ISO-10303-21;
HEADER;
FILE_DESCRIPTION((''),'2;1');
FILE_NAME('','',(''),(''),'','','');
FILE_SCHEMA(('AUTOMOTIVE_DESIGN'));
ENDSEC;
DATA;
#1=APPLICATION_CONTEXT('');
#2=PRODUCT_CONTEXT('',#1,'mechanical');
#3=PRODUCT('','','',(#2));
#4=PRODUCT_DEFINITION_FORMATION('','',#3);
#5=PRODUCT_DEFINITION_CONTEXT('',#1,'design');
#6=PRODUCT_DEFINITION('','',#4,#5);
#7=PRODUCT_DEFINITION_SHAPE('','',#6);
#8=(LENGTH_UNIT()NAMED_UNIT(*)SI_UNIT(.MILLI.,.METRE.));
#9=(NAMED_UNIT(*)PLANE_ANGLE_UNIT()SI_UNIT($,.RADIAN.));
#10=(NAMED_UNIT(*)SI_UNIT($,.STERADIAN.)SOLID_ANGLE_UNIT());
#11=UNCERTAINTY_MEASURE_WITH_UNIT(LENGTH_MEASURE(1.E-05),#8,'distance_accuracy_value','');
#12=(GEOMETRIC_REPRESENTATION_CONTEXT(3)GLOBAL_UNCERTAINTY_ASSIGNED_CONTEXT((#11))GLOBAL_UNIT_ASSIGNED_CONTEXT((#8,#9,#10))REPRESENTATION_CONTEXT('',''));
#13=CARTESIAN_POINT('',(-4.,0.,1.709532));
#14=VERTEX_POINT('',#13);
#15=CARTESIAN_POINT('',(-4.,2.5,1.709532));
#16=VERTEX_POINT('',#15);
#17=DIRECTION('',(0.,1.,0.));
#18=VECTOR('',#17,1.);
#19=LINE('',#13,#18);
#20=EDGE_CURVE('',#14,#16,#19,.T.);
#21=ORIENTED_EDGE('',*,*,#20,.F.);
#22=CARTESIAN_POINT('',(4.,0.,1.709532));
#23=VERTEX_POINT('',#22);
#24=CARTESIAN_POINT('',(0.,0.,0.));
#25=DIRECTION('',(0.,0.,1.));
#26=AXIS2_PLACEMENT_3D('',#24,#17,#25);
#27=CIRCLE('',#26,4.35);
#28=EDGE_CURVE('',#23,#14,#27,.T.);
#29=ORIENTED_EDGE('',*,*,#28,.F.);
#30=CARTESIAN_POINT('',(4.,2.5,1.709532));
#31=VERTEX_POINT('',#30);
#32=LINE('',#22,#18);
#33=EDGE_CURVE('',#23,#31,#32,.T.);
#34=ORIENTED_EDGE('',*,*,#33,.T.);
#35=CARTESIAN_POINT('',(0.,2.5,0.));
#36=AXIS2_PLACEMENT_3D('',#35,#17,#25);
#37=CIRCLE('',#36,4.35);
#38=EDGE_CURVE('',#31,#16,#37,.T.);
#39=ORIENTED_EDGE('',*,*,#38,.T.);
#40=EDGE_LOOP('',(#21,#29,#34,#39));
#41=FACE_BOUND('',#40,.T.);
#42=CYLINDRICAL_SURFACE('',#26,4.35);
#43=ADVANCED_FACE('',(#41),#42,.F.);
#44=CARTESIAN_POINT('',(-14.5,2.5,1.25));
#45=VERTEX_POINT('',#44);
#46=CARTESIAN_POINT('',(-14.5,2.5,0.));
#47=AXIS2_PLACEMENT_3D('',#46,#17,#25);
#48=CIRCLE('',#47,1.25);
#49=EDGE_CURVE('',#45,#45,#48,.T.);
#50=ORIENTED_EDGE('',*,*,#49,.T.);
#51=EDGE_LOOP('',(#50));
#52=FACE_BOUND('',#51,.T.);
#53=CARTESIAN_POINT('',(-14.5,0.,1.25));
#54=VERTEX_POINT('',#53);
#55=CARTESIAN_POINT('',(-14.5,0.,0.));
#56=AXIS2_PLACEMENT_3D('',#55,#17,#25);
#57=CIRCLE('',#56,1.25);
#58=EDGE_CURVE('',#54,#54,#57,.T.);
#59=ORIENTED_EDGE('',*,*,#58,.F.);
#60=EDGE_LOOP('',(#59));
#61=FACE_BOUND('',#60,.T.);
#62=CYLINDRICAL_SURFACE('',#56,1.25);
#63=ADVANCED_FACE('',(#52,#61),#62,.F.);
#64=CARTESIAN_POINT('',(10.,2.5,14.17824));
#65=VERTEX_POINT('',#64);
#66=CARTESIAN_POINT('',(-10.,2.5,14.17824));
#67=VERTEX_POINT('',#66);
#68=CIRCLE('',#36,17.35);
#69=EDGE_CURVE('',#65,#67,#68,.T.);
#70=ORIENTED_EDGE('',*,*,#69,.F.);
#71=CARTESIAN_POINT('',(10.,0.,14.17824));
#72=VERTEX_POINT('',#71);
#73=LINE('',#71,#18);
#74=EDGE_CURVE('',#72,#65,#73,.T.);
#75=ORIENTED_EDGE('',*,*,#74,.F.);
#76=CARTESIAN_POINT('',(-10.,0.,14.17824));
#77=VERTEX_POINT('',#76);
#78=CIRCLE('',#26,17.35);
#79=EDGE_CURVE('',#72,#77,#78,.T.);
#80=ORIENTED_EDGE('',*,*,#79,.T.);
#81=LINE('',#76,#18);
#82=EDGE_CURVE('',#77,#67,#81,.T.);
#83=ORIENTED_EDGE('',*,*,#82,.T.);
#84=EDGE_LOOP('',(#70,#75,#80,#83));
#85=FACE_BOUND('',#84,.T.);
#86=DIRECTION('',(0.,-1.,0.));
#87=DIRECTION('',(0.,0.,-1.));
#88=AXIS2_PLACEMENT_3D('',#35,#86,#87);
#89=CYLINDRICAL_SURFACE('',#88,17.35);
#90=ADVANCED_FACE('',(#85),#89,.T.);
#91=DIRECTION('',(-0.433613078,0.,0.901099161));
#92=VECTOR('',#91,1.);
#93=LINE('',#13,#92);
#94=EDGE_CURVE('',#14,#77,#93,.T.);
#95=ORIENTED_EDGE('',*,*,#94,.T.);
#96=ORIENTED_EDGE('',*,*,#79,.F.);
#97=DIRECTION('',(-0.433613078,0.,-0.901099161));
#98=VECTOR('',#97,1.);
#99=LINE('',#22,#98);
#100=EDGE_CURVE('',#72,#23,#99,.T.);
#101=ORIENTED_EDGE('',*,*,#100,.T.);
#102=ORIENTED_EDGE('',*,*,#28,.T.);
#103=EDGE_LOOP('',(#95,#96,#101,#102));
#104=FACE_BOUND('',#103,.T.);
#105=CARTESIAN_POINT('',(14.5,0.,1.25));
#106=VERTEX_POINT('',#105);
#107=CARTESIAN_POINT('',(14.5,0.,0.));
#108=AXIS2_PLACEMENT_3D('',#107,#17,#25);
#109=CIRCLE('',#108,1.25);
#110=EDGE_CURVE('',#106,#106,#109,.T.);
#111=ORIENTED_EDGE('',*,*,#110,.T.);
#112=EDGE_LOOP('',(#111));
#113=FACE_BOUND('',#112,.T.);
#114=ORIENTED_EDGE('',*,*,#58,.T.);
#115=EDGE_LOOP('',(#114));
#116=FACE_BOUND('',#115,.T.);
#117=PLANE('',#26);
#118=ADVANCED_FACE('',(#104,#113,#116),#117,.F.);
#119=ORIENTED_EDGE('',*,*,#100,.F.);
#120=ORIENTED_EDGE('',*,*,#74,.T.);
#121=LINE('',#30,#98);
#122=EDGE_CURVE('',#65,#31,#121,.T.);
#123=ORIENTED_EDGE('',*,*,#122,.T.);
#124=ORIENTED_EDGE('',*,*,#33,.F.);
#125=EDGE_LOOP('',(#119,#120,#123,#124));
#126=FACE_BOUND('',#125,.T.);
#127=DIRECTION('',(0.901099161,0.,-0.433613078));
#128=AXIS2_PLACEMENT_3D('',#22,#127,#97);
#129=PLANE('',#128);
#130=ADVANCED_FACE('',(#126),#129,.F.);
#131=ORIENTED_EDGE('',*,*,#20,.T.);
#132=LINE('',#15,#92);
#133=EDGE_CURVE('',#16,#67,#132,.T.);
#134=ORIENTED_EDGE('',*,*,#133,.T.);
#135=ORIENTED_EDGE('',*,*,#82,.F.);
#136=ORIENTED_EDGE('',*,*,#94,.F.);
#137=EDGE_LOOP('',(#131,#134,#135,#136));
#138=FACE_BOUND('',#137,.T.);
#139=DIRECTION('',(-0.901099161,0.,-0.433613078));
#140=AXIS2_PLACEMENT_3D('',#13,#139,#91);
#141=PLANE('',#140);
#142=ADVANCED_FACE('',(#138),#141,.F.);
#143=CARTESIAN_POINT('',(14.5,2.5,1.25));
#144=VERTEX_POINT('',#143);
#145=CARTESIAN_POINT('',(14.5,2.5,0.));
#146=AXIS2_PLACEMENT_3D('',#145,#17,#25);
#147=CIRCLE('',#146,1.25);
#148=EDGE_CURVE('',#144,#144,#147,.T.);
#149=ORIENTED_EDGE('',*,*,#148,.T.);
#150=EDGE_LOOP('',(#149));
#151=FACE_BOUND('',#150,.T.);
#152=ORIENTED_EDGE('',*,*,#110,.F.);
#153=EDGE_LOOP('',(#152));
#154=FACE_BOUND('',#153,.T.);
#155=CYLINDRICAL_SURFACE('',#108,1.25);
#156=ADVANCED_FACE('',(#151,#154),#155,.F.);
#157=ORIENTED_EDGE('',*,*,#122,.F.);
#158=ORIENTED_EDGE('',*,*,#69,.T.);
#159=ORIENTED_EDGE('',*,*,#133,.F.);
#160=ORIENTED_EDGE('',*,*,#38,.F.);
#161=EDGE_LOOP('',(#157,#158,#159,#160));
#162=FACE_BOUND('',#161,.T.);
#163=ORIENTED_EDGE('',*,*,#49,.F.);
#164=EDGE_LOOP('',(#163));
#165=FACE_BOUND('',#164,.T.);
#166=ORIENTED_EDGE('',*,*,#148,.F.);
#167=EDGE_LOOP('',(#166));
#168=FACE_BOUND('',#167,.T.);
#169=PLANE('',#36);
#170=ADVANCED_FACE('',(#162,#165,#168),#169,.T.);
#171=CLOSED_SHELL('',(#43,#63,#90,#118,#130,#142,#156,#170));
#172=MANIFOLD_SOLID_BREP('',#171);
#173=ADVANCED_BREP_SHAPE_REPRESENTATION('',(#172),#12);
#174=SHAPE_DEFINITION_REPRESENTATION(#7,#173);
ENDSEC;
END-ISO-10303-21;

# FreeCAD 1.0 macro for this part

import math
import FreeCAD as App
import Part
import Sketcher

doc = App.newDocument("Part")
params = doc.addObject("Spreadsheet::Sheet", "Params")
for row, (alias, value) in enumerate([
    ("sketch1_diameter", "34.7 mm"),
    ("pad1_length", "2.5 mm"),
    ("sketch2_diameter", "8.7 mm"),
    ("sketch3_diameter", "2.5 mm"),
    ("sketch4_radius", "17.35 mm"),
    ("sketch4_radius2", "4.35 mm"),
], start=1):
    params.set(f"A{row}", alias)
    params.set(f"B{row}", "=" + value)
    params.setAlias(f"B{row}", alias)

body = doc.addObject("PartDesign::Body", "Body")

# Sketch on XZ plane
sketch1 = body.newObject("Sketcher::SketchObject", "Sketch")
sketch1.AttachmentSupport = (doc.getObject("XZ_Plane"), [""])
sketch1.MapMode = "FlatFace"
sketch1.addGeometry(Part.Circle(App.Vector(0, 0, 0), App.Vector(0, 0, 1), 17), False)
sketch1.addConstraint([
    Sketcher.Constraint("Coincident", 0, 3, -1, 1),
    Sketcher.Constraint("Diameter", 0, 34.7),
])
sketch1.setExpression("Constraints[1]", "Params.sketch1_diameter")
pad1 = body.newObject("PartDesign::Pad", "Pad")
pad1.Profile = sketch1
pad1.setExpression("Length", "Params.pad1_length")
pad1.Reversed = True

# Sketch on XZ plane
sketch2 = body.newObject("Sketcher::SketchObject", "Sketch001")
sketch2.AttachmentSupport = (doc.getObject("XZ_Plane"), [""])
sketch2.MapMode = "FlatFace"
sketch2.AttachmentOffset = App.Placement(App.Vector(0, 0, -2.5), App.Rotation())
sketch2.addGeometry(Part.Circle(App.Vector(0, 0, 0), App.Vector(0, 0, 1), 4.3), False)
sketch2.addConstraint([
    Sketcher.Constraint("Coincident", 0, 3, -1, 1),
    Sketcher.Constraint("Diameter", 0, 8.7),
])
sketch2.setExpression("Constraints[1]", "Params.sketch2_diameter")
pocket1 = body.newObject("PartDesign::Pocket", "Pocket")
pocket1.Profile = sketch2
pocket1.Type = "ThroughAll"
pocket1.Reversed = True

# Sketch on XZ plane
sketch3 = body.newObject("Sketcher::SketchObject", "Sketch002")
sketch3.AttachmentSupport = (doc.getObject("XZ_Plane"), [""])
sketch3.MapMode = "FlatFace"
sketch3.AttachmentOffset = App.Placement(App.Vector(0, 0, -2.5), App.Rotation())
sketch3.addGeometry([
    Part.Circle(App.Vector(-14.5, 0, 0), App.Vector(0, 0, 1), 1.2),
    Part.Circle(App.Vector(14.5, 0, 0), App.Vector(0, 0, 1), 1.2),
], False)
sketch3.addConstraint([
    Sketcher.Constraint("Equal", 0, 1),
    Sketcher.Constraint("Symmetric", 0, 3, 1, 3, -1, 1),
    Sketcher.Constraint("PointOnObject", 0, 3, -1),
    Sketcher.Constraint("Diameter", 0, 2.5),
    Sketcher.Constraint("DistanceX", 0, 3, 1, 3, 29.0),
])
sketch3.setExpression("Constraints[3]", "Params.sketch3_diameter")
pocket2 = body.newObject("PartDesign::Pocket", "Pocket001")
pocket2.Profile = sketch3
pocket2.Type = "ThroughAll"
pocket2.Reversed = True

# Sketch on XZ plane
sketch4 = body.newObject("Sketcher::SketchObject", "Sketch003")
sketch4.AttachmentSupport = (doc.getObject("XZ_Plane"), [""])
sketch4.MapMode = "FlatFace"
sketch4.AttachmentOffset = App.Placement(App.Vector(0, 0, -2.5), App.Rotation())
sketch4.addGeometry([
    Part.LineSegment(App.Vector(-4, 1.7, 0), App.Vector(-10, 14.2, 0)),
    Part.ArcOfCircle(Part.Circle(App.Vector(0, 0, 0), App.Vector(0, 0, 1), 17.3), math.radians(55), math.radians(125)),
    Part.LineSegment(App.Vector(10, 14.2, 0), App.Vector(4, 1.7, 0)),
    Part.ArcOfCircle(Part.Circle(App.Vector(0, 0, 0), App.Vector(0, 0, 1), 4.3), math.radians(23), math.radians(157)),
], False)
sketch4.addConstraint([
    Sketcher.Constraint("Coincident", 0, 2, 1, 2),
    Sketcher.Constraint("Coincident", 1, 1, 2, 1),
    Sketcher.Constraint("Coincident", 2, 2, 3, 1),
    Sketcher.Constraint("Coincident", 3, 2, 0, 1),
    Sketcher.Constraint("Coincident", 1, 3, -1, 1),
    Sketcher.Constraint("Coincident", 3, 3, -1, 1),
    Sketcher.Constraint("Horizontal", 0, 2, 1, 1),
    Sketcher.Constraint("Horizontal", 2, 2, 3, 2),
    Sketcher.Constraint("Radius", 1, 17.35),
    Sketcher.Constraint("Radius", 3, 4.35),
    Sketcher.Constraint("DistanceX", 0, 2, -1, 1, 10.0),
    Sketcher.Constraint("DistanceX", -1, 1, 2, 2, 4.0),
])
sketch4.setExpression("Constraints[8]", "Params.sketch4_radius")
sketch4.setExpression("Constraints[9]", "Params.sketch4_radius2")
pocket3 = body.newObject("PartDesign::Pocket", "Pocket002")
pocket3.Profile = sketch4
pocket3.Type = "ThroughAll"
pocket3.Reversed = True

doc.recompute()
